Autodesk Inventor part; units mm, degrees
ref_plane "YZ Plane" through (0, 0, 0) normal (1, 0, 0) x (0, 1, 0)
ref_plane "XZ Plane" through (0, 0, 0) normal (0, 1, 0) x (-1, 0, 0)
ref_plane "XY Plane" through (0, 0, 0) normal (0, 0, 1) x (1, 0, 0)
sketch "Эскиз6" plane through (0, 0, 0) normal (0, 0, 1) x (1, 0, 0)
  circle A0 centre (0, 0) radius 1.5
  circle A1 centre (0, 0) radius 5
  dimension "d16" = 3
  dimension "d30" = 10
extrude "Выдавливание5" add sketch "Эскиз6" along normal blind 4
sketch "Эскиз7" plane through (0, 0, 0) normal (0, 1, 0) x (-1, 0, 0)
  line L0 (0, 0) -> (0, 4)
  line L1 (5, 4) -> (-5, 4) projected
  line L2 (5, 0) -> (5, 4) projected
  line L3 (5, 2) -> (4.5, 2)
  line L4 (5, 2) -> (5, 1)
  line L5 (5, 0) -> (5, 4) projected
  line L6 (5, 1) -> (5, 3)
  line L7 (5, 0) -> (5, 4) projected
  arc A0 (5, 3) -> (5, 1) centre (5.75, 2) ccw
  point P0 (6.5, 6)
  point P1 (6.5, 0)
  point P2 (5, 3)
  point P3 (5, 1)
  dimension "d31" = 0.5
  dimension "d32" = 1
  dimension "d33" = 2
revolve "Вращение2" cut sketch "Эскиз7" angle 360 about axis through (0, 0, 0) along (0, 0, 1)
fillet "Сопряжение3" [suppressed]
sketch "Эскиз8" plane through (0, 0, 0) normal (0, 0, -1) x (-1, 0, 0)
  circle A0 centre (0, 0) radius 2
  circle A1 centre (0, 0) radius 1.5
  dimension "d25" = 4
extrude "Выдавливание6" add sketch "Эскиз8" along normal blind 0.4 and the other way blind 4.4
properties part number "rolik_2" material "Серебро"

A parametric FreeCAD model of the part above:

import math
import FreeCAD as App
import Part
import Sketcher
Q = App.Units.Quantity

doc = App.newDocument("Part")
body = doc.addObject("PartDesign::Body", "Body")

# Sketch on XY plane
sketch1 = body.newObject("Sketcher::SketchObject", "Sketch")
sketch1.AttachmentSupport = (doc.getObject("XY_Plane"), [""])
sketch1.MapMode = "FlatFace"
sketch1.addGeometry([
    Part.Circle(App.Vector(0, 0, 0), App.Vector(0, 0, 1), 5),
    Part.Circle(App.Vector(0, 0, 0), App.Vector(0, 0, 1), 1.5),
], False)
sketch1.addConstraint([
    Sketcher.Constraint("Coincident", 0, 3, -1, 1),
    Sketcher.Constraint("Coincident", 1, 3, -1, 1),
    Sketcher.Constraint("Diameter", 0, Q("10 mm")),
    Sketcher.Constraint("Diameter", 1, Q("3 mm")),
])
pad1 = body.newObject("PartDesign::Pad", "Pad")
pad1.Profile = sketch1
pad1.Length = 4

# Sketch on XZ plane
sketch2 = body.newObject("Sketcher::SketchObject", "Sketch001")
sketch2.AttachmentSupport = (doc.getObject("XZ_Plane"), [""])
sketch2.MapMode = "FlatFace"
sketch2.addGeometry([
    Part.LineSegment(App.Vector(-5, 1, 0), App.Vector(-5, 3, 0)),
    Part.ArcOfCircle(Part.Circle(App.Vector(-5.8, 2, 0), App.Vector(0, 0, 1), 1.2), math.radians(-53), math.radians(53)),
], False)
sketch2.addConstraint([
    Sketcher.Constraint("Coincident", 0, 1, 1, 1),
    Sketcher.Constraint("Coincident", 1, 2, 0, 2),
    Sketcher.Constraint("Vertical", 0),
    Sketcher.Constraint("DistanceY", 0, 1, 0, 2, Q("2 mm")),
    Sketcher.Constraint("DistanceY", -1, 1, 1, 3, Q("2 mm")),
    Sketcher.Constraint("Radius", 1, Q("1.25 mm")),
    Sketcher.Constraint("DistanceX", 0, 1, -1, 1, Q("5 mm")),
])
groove = body.newObject("PartDesign::Groove", "Groove")
groove.Profile = sketch2
groove.ReferenceAxis = (sketch2, ["V_Axis"])
groove.Angle = 360

# Sketch on XY plane
sketch3 = body.newObject("Sketcher::SketchObject", "Sketch002")
sketch3.AttachmentSupport = (doc.getObject("XY_Plane"), [""])
sketch3.MapMode = "FlatFace"
sketch3.addGeometry([
    Part.Circle(App.Vector(0, 0, 0), App.Vector(0, 0, 1), 2),
    Part.Circle(App.Vector(0, 0, 0), App.Vector(0, 0, 1), 1.5),
], False)
sketch3.addConstraint([
    Sketcher.Constraint("Coincident", 0, 3, -1, 1),
    Sketcher.Constraint("Coincident", 1, 3, -1, 1),
    Sketcher.Constraint("Diameter", 0, Q("4 mm")),
    Sketcher.Constraint("Diameter", 1, Q("3 mm")),
])
pad2 = body.newObject("PartDesign::Pad", "Pad001")
pad2.Profile = sketch3
pad2.Type = "TwoLengths"
pad2.Length = 0.4
pad2.Length2 = 4.4
pad2.Reversed = True

doc.recompute()
